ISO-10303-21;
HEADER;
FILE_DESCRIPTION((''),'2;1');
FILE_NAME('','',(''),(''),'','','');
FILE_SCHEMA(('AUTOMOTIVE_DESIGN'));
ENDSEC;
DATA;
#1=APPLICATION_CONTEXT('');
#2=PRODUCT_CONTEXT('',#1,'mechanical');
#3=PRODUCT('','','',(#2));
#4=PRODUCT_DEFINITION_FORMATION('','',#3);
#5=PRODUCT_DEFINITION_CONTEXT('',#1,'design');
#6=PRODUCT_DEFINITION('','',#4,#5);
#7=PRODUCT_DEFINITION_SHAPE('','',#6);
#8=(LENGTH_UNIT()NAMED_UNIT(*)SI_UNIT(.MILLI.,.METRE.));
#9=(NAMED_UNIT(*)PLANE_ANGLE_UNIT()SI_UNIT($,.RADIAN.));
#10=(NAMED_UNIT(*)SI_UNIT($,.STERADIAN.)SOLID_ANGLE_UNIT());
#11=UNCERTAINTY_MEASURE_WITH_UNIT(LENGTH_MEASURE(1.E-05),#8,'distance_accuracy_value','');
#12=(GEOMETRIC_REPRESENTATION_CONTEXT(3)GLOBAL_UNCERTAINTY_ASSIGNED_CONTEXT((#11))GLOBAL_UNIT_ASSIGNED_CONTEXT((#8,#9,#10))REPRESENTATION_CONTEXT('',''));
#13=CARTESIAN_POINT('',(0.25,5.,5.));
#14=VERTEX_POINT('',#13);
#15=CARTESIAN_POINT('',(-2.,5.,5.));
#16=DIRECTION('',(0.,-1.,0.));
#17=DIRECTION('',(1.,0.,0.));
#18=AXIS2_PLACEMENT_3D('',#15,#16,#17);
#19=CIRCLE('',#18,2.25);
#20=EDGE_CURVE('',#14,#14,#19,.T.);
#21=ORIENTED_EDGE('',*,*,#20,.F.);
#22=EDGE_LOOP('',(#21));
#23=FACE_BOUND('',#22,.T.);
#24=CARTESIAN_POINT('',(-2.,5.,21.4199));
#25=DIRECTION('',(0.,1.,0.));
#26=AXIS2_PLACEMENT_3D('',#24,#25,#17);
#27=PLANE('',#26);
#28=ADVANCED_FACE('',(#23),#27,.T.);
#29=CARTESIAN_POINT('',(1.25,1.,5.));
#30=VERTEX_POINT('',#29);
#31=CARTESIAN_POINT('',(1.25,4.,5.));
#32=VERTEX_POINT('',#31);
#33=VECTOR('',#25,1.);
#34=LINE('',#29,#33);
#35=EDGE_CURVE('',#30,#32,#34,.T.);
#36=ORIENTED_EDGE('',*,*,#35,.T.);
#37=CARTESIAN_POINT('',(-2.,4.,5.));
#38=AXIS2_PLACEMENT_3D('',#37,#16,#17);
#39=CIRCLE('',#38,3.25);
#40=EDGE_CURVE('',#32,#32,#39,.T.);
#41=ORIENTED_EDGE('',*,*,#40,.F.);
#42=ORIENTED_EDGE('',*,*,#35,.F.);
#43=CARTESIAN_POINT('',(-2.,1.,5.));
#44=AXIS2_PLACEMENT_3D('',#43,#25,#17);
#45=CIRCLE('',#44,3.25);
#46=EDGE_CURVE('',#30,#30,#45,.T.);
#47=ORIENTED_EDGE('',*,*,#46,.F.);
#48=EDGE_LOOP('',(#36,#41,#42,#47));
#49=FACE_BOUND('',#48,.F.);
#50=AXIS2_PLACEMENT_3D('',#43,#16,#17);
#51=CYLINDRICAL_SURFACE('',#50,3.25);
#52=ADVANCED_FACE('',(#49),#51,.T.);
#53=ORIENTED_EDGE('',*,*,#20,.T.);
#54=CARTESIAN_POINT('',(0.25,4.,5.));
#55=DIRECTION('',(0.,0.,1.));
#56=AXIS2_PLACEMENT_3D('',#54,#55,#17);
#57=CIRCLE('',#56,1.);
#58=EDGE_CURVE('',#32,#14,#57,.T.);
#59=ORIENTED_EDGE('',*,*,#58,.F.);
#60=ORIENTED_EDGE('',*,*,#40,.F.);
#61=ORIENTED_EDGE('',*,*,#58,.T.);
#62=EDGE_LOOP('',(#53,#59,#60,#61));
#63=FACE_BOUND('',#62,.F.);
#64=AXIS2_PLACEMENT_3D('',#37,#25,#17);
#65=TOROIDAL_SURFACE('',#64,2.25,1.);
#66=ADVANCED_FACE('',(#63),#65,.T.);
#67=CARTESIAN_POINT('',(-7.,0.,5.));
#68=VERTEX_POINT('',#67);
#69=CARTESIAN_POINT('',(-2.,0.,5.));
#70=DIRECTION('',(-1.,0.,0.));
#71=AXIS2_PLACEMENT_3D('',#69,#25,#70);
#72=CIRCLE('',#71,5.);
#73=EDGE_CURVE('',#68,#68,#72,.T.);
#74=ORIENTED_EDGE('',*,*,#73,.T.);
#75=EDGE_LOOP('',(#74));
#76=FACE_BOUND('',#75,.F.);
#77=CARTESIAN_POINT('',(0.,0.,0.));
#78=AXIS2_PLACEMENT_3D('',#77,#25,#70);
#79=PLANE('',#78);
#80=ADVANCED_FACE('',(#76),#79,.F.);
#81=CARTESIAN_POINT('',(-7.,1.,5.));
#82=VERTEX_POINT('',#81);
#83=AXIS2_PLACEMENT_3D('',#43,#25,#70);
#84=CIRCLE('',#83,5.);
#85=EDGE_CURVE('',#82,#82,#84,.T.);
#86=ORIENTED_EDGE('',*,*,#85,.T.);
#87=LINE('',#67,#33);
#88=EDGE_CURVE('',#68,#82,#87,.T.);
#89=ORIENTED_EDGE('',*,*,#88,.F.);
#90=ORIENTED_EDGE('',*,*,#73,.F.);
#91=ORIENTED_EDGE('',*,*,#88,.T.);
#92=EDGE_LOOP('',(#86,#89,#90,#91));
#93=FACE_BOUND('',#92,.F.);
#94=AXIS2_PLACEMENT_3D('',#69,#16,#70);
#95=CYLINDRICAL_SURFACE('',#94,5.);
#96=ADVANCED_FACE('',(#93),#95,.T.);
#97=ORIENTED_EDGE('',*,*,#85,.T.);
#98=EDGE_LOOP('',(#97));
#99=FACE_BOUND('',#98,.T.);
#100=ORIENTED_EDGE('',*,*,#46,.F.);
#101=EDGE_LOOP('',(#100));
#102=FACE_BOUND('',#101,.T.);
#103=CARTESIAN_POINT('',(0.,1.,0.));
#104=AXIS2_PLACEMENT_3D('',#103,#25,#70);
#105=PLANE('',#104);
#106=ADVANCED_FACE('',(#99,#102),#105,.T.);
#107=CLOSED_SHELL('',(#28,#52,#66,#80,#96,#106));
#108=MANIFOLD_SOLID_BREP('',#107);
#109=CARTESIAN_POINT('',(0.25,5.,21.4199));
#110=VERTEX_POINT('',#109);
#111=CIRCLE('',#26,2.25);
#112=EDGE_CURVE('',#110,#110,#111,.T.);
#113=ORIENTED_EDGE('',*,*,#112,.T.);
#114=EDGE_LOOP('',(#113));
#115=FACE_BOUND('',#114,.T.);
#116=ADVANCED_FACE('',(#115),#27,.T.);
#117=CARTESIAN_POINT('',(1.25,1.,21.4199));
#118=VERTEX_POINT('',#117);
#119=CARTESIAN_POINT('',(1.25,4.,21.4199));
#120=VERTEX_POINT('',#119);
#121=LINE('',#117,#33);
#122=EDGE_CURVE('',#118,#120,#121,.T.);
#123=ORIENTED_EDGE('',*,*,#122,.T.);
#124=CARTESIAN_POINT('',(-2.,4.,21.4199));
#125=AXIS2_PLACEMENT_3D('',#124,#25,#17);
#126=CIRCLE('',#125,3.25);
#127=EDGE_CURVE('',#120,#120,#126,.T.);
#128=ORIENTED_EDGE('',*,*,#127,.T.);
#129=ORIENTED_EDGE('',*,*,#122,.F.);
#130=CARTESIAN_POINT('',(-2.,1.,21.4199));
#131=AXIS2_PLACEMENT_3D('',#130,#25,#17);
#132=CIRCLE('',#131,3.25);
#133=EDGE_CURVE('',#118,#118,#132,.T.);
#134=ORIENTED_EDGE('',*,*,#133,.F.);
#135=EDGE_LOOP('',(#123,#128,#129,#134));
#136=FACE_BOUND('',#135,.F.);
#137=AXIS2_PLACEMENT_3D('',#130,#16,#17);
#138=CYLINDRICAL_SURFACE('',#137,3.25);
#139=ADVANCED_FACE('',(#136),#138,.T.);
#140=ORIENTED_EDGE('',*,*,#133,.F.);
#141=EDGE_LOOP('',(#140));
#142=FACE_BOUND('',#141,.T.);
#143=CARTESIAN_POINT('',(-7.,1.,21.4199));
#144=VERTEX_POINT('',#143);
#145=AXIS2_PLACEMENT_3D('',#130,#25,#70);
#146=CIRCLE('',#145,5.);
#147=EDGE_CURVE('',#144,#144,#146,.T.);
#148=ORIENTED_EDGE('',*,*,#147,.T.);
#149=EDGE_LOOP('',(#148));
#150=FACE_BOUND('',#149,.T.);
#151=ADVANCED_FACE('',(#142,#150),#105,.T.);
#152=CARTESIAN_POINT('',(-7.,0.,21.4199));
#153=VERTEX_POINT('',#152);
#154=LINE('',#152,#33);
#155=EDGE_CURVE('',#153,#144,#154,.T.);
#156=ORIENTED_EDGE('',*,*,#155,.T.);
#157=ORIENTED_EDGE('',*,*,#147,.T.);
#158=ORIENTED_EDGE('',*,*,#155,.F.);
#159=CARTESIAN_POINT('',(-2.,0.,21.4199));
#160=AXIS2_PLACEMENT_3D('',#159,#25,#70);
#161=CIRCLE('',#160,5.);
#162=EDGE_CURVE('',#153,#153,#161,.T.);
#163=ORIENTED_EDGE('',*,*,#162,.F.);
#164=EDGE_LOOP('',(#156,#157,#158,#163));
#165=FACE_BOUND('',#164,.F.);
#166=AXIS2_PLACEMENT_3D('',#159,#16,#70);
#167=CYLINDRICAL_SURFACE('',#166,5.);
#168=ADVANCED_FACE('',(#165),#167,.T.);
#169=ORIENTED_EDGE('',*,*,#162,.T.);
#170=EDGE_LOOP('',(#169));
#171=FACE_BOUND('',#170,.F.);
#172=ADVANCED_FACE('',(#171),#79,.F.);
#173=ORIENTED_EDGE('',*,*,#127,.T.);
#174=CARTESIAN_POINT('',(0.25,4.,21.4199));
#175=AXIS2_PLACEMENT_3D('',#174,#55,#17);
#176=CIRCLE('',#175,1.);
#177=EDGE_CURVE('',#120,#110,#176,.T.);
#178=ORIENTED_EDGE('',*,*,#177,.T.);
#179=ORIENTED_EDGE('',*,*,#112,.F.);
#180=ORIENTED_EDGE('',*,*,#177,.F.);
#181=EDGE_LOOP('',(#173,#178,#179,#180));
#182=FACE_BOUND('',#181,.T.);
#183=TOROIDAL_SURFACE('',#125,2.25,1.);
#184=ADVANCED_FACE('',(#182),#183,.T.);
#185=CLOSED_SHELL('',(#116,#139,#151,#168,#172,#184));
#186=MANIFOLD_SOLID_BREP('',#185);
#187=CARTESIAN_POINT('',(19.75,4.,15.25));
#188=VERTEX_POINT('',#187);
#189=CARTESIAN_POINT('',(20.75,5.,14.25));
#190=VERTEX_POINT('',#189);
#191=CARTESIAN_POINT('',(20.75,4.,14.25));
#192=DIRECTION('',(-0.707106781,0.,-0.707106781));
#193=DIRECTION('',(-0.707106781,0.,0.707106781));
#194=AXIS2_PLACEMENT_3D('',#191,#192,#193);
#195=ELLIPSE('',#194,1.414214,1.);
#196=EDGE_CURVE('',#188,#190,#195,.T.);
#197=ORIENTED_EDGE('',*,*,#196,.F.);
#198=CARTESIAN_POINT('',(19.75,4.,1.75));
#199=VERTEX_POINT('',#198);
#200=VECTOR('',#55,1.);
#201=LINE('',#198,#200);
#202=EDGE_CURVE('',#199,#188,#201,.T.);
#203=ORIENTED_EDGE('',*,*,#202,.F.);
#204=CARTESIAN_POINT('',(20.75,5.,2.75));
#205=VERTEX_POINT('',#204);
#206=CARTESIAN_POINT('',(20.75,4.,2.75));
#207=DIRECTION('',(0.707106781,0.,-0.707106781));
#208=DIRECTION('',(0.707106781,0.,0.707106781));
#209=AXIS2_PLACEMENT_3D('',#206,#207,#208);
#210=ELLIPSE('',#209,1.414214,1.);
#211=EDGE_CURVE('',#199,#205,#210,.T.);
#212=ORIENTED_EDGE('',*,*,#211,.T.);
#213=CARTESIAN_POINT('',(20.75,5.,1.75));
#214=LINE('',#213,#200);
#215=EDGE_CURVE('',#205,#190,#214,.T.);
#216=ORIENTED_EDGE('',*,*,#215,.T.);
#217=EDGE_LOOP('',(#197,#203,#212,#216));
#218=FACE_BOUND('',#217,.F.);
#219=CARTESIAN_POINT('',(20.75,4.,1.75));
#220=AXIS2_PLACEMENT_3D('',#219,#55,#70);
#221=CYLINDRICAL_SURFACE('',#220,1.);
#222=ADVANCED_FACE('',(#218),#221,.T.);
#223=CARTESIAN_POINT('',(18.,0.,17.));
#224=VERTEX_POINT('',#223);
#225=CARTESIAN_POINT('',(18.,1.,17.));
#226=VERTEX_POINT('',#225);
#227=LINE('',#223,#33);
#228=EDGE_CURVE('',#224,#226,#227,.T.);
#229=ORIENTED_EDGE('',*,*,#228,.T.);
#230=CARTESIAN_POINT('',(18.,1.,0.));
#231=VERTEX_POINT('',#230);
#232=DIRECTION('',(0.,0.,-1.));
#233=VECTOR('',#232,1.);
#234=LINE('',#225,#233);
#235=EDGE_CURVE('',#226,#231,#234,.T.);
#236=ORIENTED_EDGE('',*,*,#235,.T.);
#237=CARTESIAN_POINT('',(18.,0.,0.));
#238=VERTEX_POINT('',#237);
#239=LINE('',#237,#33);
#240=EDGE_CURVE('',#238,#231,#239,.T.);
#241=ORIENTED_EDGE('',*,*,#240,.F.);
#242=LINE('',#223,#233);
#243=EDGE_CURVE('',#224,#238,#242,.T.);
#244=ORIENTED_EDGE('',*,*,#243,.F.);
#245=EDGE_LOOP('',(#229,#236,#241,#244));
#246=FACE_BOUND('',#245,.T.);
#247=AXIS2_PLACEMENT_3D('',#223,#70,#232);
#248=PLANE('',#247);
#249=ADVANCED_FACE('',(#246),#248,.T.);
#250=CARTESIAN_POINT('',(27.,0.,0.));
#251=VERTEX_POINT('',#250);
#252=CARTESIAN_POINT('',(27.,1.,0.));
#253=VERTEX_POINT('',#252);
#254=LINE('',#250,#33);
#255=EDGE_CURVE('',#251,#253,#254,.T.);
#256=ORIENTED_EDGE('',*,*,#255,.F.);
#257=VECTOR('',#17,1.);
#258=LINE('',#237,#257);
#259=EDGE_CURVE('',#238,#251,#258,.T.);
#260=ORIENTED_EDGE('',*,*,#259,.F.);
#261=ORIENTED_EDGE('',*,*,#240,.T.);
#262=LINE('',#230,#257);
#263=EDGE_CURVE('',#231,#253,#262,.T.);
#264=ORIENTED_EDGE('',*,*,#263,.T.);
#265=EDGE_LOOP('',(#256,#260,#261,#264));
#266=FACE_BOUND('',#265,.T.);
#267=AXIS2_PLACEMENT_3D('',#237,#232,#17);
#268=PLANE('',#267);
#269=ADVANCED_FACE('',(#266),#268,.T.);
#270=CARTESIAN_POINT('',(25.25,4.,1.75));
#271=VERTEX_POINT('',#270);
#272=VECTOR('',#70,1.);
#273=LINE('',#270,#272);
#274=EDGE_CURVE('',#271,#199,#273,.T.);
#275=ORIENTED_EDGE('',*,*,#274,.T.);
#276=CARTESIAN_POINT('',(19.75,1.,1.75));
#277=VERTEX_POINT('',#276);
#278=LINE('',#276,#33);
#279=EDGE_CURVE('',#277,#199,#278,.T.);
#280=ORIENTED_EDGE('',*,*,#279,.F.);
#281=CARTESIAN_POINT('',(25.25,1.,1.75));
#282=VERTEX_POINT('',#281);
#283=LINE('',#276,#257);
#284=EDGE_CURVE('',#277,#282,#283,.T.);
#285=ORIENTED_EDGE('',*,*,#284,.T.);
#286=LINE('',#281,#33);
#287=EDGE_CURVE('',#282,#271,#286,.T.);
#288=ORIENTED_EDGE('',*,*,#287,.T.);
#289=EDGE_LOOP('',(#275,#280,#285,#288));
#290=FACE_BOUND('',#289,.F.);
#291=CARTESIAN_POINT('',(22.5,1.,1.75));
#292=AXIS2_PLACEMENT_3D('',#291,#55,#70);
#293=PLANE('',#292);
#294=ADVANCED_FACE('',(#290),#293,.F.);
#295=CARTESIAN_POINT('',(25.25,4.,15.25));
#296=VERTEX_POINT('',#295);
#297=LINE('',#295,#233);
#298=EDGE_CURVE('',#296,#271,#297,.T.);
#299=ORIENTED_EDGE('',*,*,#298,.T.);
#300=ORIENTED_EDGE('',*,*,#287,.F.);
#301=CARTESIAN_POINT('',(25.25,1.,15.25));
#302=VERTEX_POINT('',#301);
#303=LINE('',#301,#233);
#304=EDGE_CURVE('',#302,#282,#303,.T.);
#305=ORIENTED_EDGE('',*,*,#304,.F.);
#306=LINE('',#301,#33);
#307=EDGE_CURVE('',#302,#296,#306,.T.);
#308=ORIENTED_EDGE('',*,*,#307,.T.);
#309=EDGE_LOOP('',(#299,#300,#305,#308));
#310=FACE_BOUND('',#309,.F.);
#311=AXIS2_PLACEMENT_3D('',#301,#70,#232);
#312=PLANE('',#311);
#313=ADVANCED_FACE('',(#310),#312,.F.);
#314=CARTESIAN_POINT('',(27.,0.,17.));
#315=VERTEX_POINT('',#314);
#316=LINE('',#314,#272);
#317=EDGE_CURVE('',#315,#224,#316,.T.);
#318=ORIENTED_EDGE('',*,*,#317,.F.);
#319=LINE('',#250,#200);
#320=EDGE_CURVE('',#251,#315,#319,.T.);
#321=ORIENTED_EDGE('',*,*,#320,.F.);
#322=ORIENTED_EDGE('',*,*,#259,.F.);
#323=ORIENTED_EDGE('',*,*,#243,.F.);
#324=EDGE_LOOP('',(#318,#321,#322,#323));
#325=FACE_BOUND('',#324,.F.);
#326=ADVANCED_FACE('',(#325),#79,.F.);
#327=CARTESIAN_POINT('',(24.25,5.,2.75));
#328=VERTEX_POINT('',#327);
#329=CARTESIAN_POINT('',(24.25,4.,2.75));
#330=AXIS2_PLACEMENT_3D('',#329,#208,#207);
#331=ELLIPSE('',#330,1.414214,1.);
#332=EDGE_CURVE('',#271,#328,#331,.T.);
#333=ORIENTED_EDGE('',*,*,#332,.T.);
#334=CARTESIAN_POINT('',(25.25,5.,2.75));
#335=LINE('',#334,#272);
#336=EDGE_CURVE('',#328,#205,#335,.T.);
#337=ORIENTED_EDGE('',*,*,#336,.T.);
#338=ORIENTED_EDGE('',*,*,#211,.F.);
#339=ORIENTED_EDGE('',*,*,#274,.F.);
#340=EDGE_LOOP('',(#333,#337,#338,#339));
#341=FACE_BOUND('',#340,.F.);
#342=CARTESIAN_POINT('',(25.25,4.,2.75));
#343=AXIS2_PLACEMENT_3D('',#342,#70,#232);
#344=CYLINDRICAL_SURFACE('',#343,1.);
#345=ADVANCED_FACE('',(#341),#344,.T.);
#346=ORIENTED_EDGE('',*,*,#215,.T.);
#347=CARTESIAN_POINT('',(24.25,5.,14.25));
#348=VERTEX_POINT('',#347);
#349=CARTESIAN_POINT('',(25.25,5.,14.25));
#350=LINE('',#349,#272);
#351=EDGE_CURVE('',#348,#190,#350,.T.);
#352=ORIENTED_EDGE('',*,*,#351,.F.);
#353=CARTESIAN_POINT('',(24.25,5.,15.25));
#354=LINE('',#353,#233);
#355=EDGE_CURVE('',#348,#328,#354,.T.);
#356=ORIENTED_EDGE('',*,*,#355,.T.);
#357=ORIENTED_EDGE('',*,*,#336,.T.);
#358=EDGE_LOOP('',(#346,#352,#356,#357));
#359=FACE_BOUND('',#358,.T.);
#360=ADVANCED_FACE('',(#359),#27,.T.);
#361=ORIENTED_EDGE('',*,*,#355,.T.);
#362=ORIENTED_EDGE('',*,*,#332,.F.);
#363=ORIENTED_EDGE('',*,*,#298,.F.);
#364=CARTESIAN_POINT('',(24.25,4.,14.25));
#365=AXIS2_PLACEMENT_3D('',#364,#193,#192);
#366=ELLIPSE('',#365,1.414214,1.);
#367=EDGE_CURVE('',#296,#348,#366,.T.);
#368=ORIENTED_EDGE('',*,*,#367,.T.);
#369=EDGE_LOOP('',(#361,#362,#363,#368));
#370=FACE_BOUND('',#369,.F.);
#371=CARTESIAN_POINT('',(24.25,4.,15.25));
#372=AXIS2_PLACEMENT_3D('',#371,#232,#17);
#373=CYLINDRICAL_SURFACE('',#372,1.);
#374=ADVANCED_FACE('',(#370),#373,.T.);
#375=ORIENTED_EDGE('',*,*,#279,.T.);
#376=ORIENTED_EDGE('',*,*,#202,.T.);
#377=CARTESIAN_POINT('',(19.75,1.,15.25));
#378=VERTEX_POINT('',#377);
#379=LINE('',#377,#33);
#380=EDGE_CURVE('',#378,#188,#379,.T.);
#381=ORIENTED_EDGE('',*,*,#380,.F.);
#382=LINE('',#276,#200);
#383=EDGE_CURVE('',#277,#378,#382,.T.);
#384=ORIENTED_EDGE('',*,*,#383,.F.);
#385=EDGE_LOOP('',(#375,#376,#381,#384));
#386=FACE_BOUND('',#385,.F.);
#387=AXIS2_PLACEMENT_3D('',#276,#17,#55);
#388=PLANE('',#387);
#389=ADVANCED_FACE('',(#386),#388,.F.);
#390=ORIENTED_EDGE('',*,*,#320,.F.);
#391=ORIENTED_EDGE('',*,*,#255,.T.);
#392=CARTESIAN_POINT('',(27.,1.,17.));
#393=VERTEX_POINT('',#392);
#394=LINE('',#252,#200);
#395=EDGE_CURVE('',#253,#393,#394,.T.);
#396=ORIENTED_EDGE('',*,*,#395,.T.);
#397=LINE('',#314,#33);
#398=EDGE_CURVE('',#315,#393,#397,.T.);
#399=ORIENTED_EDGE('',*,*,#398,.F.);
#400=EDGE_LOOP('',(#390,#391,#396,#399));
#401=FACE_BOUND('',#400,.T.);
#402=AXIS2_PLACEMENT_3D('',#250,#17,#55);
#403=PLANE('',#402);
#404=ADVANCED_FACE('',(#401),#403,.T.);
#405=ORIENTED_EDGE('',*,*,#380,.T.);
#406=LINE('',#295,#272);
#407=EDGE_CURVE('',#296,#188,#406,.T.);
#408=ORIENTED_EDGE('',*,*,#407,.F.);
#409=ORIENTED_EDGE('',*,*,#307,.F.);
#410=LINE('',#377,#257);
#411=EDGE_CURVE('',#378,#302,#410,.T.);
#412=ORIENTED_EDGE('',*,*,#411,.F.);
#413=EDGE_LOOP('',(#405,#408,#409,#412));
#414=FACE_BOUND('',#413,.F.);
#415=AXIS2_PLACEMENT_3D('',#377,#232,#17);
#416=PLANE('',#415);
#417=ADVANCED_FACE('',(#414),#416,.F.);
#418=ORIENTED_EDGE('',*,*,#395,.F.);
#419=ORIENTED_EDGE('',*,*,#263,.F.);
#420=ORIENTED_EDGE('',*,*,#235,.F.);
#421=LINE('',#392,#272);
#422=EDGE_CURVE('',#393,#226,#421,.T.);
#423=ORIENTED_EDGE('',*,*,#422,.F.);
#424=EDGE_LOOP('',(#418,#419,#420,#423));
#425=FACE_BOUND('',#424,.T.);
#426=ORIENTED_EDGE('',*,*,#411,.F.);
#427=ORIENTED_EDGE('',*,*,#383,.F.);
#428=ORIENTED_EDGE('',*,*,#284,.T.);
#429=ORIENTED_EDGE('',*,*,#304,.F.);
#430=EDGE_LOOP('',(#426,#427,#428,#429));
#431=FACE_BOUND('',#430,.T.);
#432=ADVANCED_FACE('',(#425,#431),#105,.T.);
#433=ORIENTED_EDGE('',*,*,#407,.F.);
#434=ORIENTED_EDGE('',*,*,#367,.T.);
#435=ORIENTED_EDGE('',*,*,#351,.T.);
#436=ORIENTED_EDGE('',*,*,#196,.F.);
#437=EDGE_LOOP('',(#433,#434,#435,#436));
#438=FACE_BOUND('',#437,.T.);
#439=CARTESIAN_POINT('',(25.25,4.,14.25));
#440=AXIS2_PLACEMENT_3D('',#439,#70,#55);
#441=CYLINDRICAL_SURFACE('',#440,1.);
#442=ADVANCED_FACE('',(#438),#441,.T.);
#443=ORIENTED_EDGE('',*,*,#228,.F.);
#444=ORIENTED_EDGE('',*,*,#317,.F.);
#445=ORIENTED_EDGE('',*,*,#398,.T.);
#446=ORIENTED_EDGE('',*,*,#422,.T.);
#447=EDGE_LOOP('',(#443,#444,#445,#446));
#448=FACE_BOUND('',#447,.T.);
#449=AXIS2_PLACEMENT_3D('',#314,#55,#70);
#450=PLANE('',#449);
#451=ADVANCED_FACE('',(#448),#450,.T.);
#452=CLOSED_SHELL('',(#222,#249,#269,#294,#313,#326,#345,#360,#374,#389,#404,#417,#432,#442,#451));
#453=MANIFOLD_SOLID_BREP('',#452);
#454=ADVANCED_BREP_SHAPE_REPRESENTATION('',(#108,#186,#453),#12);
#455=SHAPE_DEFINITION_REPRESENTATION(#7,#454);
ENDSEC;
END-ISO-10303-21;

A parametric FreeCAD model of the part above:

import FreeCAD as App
import Part
import Sketcher


def edges_at(feature, points):
    """Names of the edges that pass closest to the given points."""
    edges = feature.Shape.Edges
    near = lambda p: min(range(len(edges)), key=lambda i: edges[i].distToShape(Part.Vertex(*p))[0])
    return sorted({f"Edge{near(p) + 1}" for p in points})

doc = App.newDocument("Part")
body = doc.addObject("PartDesign::Body", "Body")
body.AllowCompound = True

# Sketch on XZ plane
sketch1 = body.newObject("Sketcher::SketchObject", "Sketch")
sketch1.AttachmentSupport = (doc.getObject("XZ_Plane"), [""])
sketch1.MapMode = "FlatFace"
sketch1.addGeometry([
    Part.Circle(App.Vector(-2, 5, 0), App.Vector(0, 0, 1), 5),  # 0
    Part.Circle(App.Vector(-2, 21, 0), App.Vector(0, 0, 1), 5),  # 1
    Part.LineSegment(App.Vector(27, 0, 0), App.Vector(18, 0, 0)),  # 2
    Part.LineSegment(App.Vector(18, 0, 0), App.Vector(18, 17, 0)),  # 3
    Part.LineSegment(App.Vector(18, 17, 0), App.Vector(27, 17, 0)),  # 4
    Part.LineSegment(App.Vector(27, 17, 0), App.Vector(27, 0, 0)),  # 5
], False)
sketch1.addConstraint([
    Sketcher.Constraint("Coincident", 2, 2, 3, 1),
    Sketcher.Constraint("Coincident", 3, 2, 4, 1),
    Sketcher.Constraint("Coincident", 4, 2, 5, 1),
    Sketcher.Constraint("Coincident", 5, 2, 2, 1),
    Sketcher.Constraint("Horizontal", 2),
    Sketcher.Constraint("Vertical", 3),
    Sketcher.Constraint("Horizontal", 4),
    Sketcher.Constraint("Vertical", 5),
    Sketcher.Constraint("Equal", 0, 1),
    Sketcher.Constraint("PointOnObject", 2, 2, -1),
    Sketcher.Constraint("Vertical", 0, 3, 1, 3),
    Sketcher.Constraint("Diameter", 0, 10.0),
    Sketcher.Constraint("DistanceX", 2, 2, 2, 1, 9.0),
    Sketcher.Constraint("DistanceY", 3, 1, 3, 2, 17.0),
    Sketcher.Constraint("DistanceX", 0, 3, -1, 1, 2.0),
    Sketcher.Constraint("DistanceY", -1, 1, 0, 3, 5.0),
    Sketcher.Constraint("DistanceX", -1, 1, 2, 2, 18.0),
    Sketcher.Constraint("DistanceY", -1, 1, 1, 3, 21.42),
])
pad1 = body.newObject("PartDesign::Pad", "Pad")
pad1.Profile = sketch1
pad1.Length = 1
pad1.Reversed = True

# Sketch on XZ plane
sketch2 = body.newObject("Sketcher::SketchObject", "Sketch001")
sketch2.AttachmentSupport = (doc.getObject("XZ_Plane"), [""])
sketch2.MapMode = "FlatFace"
sketch2.AttachmentOffset = App.Placement(App.Vector(0, 0, -1), App.Rotation())
sketch2.addGeometry([
    Part.Circle(App.Vector(-2, 21.4, 0), App.Vector(0, 0, 1), 3.2),  # 0
    Part.Circle(App.Vector(-2, 5, 0), App.Vector(0, 0, 1), 3.2),  # 1
    Part.LineSegment(App.Vector(19.8, 15.2, 0), App.Vector(25.2, 15.2, 0)),  # 2
    Part.LineSegment(App.Vector(25.2, 15.2, 0), App.Vector(25.2, 1.8, 0)),  # 3
    Part.LineSegment(App.Vector(25.2, 1.8, 0), App.Vector(19.8, 1.8, 0)),  # 4
    Part.LineSegment(App.Vector(19.8, 1.8, 0), App.Vector(19.8, 15.2, 0)),  # 5
], False)
sketch2.addConstraint([
    Sketcher.Constraint("Coincident", 2, 2, 3, 1),
    Sketcher.Constraint("Coincident", 3, 2, 4, 1),
    Sketcher.Constraint("Coincident", 4, 2, 5, 1),
    Sketcher.Constraint("Coincident", 5, 2, 2, 1),
    Sketcher.Constraint("Horizontal", 2),
    Sketcher.Constraint("Vertical", 3),
    Sketcher.Constraint("Horizontal", 4),
    Sketcher.Constraint("Vertical", 5),
    Sketcher.Constraint("Equal", 0, 1),
    Sketcher.Constraint("Vertical", 0, 3, 1, 3),
    Sketcher.Constraint("Diameter", 0, 6.5),
    Sketcher.Constraint("DistanceX", 2, 1, 2, 2, 5.5),
    Sketcher.Constraint("DistanceY", 3, 2, 3, 1, 13.5),
    Sketcher.Constraint("DistanceX", 0, 3, -1, 1, 2.0),
    Sketcher.Constraint("DistanceY", -1, 1, 1, 3, 5.0),
    Sketcher.Constraint("DistanceY", -1, 1, 0, 3, 21.42),
    Sketcher.Constraint("DistanceX", -1, 1, 2, 2, 25.25),
    Sketcher.Constraint("DistanceY", -1, 1, 2, 2, 15.25),
])
pad2 = body.newObject("PartDesign::Pad", "Pad001")
pad2.Profile = sketch2
pad2.Length = 4
pad2.Reversed = True
doc.recompute()

fillet = body.newObject("PartDesign::Fillet", "Fillet")
fillet.Base = (pad2, edges_at(pad2, [
    (-5.25, 5, 5),
    (-5.25, 5, 21.42),
    (25.25, 5, 8.5),
    (22.5, 5, 15.25),
    (19.75, 5, 8.5),
    (22.5, 5, 1.75),
]))
fillet.Radius = 1

doc.recompute()
